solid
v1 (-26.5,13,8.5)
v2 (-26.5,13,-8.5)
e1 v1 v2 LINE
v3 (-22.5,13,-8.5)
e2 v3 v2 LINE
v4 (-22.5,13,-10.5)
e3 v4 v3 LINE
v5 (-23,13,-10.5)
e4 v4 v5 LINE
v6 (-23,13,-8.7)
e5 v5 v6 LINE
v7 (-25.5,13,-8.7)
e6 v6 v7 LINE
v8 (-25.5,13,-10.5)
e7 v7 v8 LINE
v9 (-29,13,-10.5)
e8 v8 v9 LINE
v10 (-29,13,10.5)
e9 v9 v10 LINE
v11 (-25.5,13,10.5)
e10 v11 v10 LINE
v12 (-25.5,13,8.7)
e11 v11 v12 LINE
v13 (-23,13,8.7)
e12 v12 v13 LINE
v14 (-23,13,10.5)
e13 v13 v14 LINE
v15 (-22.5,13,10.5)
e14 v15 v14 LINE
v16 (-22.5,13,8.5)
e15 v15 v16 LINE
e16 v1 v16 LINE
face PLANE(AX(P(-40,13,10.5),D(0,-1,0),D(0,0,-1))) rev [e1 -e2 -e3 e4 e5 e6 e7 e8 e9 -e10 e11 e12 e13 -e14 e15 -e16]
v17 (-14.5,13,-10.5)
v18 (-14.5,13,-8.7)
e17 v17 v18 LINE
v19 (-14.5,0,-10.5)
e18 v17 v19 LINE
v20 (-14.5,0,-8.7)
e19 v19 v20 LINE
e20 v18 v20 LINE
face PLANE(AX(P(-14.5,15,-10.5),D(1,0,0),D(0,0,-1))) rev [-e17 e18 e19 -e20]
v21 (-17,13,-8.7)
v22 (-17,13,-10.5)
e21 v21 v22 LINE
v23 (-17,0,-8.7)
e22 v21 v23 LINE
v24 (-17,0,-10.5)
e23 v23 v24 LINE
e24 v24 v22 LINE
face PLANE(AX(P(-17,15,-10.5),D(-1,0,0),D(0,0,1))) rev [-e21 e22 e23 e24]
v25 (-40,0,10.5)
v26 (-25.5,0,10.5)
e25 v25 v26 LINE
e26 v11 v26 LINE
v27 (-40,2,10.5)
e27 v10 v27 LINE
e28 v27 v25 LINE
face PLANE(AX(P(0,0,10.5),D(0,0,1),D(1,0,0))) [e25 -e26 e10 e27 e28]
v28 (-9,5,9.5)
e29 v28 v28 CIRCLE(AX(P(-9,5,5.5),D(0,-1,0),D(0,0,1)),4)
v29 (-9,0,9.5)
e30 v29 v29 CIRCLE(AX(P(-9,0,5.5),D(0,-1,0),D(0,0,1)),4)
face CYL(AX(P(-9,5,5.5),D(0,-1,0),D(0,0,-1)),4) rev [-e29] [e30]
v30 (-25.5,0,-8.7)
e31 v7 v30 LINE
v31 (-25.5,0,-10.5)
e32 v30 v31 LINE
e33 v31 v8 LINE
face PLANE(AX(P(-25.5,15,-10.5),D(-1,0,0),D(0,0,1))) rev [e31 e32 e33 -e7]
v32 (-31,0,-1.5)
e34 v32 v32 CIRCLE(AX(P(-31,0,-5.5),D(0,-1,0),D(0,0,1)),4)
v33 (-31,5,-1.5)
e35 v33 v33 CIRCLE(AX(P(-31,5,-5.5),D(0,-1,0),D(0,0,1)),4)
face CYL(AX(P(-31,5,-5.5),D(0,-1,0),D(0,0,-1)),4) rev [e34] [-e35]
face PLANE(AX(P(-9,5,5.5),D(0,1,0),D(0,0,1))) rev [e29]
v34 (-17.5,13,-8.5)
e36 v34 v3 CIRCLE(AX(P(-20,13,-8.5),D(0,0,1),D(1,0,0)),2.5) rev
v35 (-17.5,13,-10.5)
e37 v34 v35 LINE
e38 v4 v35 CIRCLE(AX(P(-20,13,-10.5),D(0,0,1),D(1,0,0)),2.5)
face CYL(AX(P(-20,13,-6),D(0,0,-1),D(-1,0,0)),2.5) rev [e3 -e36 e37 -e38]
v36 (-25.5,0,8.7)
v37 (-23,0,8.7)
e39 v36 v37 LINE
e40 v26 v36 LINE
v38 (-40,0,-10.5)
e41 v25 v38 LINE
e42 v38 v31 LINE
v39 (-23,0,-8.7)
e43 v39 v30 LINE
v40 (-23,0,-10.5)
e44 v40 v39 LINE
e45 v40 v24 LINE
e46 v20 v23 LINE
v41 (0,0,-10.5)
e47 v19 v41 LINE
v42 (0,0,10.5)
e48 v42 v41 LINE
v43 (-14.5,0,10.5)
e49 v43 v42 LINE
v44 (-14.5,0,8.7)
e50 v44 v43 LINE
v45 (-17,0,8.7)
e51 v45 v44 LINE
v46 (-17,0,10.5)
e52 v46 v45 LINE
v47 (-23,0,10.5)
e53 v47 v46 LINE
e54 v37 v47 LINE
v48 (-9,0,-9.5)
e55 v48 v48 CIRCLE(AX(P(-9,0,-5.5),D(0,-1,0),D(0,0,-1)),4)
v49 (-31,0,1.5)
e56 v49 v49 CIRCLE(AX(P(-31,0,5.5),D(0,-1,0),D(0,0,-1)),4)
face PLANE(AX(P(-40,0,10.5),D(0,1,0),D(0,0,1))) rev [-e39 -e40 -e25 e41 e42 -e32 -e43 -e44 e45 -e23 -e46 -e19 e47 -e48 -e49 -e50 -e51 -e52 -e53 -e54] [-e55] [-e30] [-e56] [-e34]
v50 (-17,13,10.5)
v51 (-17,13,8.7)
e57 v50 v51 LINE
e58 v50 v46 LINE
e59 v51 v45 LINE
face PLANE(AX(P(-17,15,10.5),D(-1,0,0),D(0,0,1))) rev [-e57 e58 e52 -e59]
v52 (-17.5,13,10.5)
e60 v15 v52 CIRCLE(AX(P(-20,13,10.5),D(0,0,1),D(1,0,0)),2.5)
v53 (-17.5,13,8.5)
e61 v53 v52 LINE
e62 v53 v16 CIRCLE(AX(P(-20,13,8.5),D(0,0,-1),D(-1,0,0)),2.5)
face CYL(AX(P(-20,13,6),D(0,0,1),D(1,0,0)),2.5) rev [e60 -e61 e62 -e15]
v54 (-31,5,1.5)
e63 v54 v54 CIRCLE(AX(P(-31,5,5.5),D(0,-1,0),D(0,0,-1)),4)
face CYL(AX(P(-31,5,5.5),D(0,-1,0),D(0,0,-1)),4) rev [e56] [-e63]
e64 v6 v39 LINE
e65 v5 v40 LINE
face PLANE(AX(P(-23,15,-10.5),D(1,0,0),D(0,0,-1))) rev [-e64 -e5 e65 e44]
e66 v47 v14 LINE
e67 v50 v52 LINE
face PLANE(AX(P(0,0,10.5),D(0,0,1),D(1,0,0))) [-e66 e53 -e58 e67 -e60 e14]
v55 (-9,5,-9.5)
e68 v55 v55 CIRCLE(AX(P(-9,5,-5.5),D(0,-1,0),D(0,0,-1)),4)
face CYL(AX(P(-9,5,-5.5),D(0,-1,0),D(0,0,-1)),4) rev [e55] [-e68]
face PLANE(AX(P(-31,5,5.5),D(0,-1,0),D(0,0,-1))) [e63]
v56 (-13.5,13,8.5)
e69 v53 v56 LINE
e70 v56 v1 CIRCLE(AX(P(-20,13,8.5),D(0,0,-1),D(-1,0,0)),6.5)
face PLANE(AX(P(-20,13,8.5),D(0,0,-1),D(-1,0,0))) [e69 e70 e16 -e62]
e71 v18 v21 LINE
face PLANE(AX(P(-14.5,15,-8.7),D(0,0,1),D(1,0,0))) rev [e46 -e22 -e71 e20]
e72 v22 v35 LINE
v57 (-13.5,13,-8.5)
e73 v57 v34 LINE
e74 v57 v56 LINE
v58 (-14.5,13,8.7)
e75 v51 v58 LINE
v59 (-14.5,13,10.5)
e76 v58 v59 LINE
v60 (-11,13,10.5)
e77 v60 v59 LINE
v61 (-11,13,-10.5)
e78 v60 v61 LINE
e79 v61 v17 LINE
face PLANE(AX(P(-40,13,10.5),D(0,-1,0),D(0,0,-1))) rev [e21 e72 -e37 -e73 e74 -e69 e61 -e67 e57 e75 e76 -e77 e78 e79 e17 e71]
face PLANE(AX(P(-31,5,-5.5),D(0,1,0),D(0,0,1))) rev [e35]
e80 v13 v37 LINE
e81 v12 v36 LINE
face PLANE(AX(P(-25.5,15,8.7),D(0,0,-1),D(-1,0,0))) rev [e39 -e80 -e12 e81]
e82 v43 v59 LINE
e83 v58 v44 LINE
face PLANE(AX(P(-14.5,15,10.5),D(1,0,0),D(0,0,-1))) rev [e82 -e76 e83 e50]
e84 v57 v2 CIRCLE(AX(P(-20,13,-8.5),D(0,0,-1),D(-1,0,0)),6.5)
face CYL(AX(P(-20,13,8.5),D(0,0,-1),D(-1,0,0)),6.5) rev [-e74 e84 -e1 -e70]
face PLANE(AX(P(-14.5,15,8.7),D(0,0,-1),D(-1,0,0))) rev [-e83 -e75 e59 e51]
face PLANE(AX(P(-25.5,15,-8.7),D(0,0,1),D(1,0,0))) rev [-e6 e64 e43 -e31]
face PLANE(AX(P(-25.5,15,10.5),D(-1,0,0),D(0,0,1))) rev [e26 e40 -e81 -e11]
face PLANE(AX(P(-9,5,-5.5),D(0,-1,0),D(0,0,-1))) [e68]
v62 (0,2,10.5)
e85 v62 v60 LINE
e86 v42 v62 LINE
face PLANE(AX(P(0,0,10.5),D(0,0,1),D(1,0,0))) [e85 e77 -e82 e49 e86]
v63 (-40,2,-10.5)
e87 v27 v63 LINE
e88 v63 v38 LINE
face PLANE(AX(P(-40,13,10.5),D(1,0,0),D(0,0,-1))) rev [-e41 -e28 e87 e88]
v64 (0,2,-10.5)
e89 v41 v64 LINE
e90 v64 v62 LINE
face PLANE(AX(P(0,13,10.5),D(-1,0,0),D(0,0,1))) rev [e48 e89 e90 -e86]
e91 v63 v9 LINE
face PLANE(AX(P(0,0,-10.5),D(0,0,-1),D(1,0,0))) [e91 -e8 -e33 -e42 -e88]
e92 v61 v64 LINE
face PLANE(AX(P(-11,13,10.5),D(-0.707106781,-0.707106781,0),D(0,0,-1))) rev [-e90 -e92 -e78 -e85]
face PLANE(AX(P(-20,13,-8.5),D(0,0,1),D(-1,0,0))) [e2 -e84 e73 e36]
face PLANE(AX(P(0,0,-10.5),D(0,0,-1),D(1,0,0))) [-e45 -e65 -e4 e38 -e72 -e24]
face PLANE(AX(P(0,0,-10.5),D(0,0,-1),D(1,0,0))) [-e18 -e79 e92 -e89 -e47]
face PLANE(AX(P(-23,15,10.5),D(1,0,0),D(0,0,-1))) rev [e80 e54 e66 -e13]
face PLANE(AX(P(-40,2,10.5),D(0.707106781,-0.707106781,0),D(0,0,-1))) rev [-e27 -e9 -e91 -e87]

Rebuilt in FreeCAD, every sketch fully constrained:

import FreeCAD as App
import Part
import Sketcher


def edges_at(feature, points):
    """Names of the edges that pass closest to the given points."""
    edges = feature.Shape.Edges
    near = lambda p: min(range(len(edges)), key=lambda i: edges[i].distToShape(Part.Vertex(*p))[0])
    return sorted({f"Edge{near(p) + 1}" for p in points})


def add_polygon(sketch, points):
    """Adds a closed chain of lines whose ends are joined by coincident constraints."""
    first, n = sketch.GeometryCount, len(points)
    for a, b in zip(points, points[1:] + points[:1]):
        sketch.addGeometry(Part.LineSegment(App.Vector(*a, 0), App.Vector(*b, 0)), False)
    for i in range(n):
        sketch.addConstraint(Sketcher.Constraint("Coincident", first + i, 2, first + (i + 1) % n, 1))

doc = App.newDocument("Part")
params = doc.addObject("Spreadsheet::Sheet", "Params")
for row, (alias, value) in enumerate([
    ("sketch1_width", "40 mm"),
    ("sketch1_height", "13 mm"),
    ("pad1_length", "10.5 mm"),
    ("sketch2_diameter", "13 mm"),
    ("pocket1_length", "8.5 mm"),
    ("sketch3_diameter", "5 mm"),
    ("pocket2_length", "4.5 mm"),
    ("sketch4_diameter", "8 mm"),
    ("pocket3_length", "5 mm"),
    ("chamfer_size", "11 mm"),
    ("sketch5_width", "2.5 mm"),
    ("sketch5_height", "1.8 mm"),
    ("pocket4_length", "15 mm"),
], start=1):
    params.set(f"A{row}", alias)
    params.set(f"B{row}", "=" + value)
    params.setAlias(f"B{row}", alias)

body = doc.addObject("PartDesign::Body", "Body")

sketch1 = body.newObject("Sketcher::SketchObject", "Sketch")
sketch1.AttachmentSupport = (doc.getObject("XY_Plane"), [""])
sketch1.MapMode = "FlatFace"
add_polygon(sketch1, [(-40, 13), (-40, 0), (0, 0), (0, 13)])
sketch1.addConstraint(Sketcher.Constraint("Vertical", 0))
sketch1.addConstraint(Sketcher.Constraint("Horizontal", 1))
sketch1.addConstraint(Sketcher.Constraint("Vertical", 2))
sketch1.addConstraint(Sketcher.Constraint("Horizontal", 3))
sketch1.addConstraint(Sketcher.Constraint("Coincident", 1, 2, -1, 1))
sketch1.addConstraint(Sketcher.Constraint("DistanceX", 1, 1, 1, 2, 40.0))
sketch1.addConstraint(Sketcher.Constraint("DistanceY", 0, 2, 0, 1, 13.0))
sketch1.setExpression("Constraints[9]", "Params.sketch1_width")
sketch1.setExpression("Constraints[10]", "Params.sketch1_height")
pad1 = body.newObject("PartDesign::Pad", "Pad")
pad1.Profile = sketch1
pad1.setExpression("Length", "Params.pad1_length")

sketch2 = body.newObject("Sketcher::SketchObject", "Sketch001")
sketch2.AttachmentSupport = (doc.getObject("XY_Plane"), [""])
sketch2.MapMode = "FlatFace"
sketch2.addGeometry(Part.Circle(App.Vector(-20, 13, 0), App.Vector(0, 0, 1), 6.5), False)
sketch2.addConstraint(Sketcher.Constraint("Diameter", 0, 13.0))
sketch2.addConstraint(Sketcher.Constraint("DistanceX", 0, 3, -1, 1, 20.0))
sketch2.addConstraint(Sketcher.Constraint("DistanceY", -1, 1, 0, 3, 13.0))
sketch2.setExpression("Constraints[0]", "Params.sketch2_diameter")
pocket1 = body.newObject("PartDesign::Pocket", "Pocket")
pocket1.Profile = sketch2
pocket1.setExpression("Length", "Params.pocket1_length")
pocket1.Reversed = True

sketch3 = body.newObject("Sketcher::SketchObject", "Sketch002")
sketch3.AttachmentSupport = (doc.getObject("XY_Plane"), [""])
sketch3.MapMode = "FlatFace"
sketch3.AttachmentOffset = App.Placement(App.Vector(0, 0, 10.5), App.Rotation())
sketch3.addGeometry(Part.Circle(App.Vector(-20, 13, 0), App.Vector(0, 0, 1), 2.5), False)
sketch3.addConstraint(Sketcher.Constraint("Diameter", 0, 5.0))
sketch3.addConstraint(Sketcher.Constraint("DistanceX", 0, 3, -1, 1, 20.0))
sketch3.addConstraint(Sketcher.Constraint("DistanceY", -1, 1, 0, 3, 13.0))
sketch3.setExpression("Constraints[0]", "Params.sketch3_diameter")
pocket2 = body.newObject("PartDesign::Pocket", "Pocket001")
pocket2.Profile = sketch3
pocket2.setExpression("Length", "Params.pocket2_length")
doc.recompute()

mirrored = body.newObject("PartDesign::Mirrored", "Mirrored")
mirrored.Originals = [pad1, pocket1, pocket2]
mirrored.MirrorPlane = (doc.getObject("XY_Plane"), [""])
body.Tip = mirrored

sketch4 = body.newObject("Sketcher::SketchObject", "Sketch003")
sketch4.AttachmentSupport = (doc.getObject("XZ_Plane"), [""])
sketch4.MapMode = "FlatFace"
sketch4.addGeometry(Part.Circle(App.Vector(-31, 5.5, 0), App.Vector(0, 0, 1), 4), False)
sketch4.addGeometry(Part.Circle(App.Vector(-9, 5.5, 0), App.Vector(0, 0, 1), 4), False)
sketch4.addGeometry(Part.Circle(App.Vector(-9, -5.5, 0), App.Vector(0, 0, 1), 4), False)
sketch4.addGeometry(Part.Circle(App.Vector(-31, -5.5, 0), App.Vector(0, 0, 1), 4), False)
sketch4.addConstraint(Sketcher.Constraint("Equal", 0, 1))
sketch4.addConstraint(Sketcher.Constraint("Equal", 1, 2))
sketch4.addConstraint(Sketcher.Constraint("Equal", 2, 3))
sketch4.addConstraint(Sketcher.Constraint("Symmetric", 1, 3, 2, 3, -1))
sketch4.addConstraint(Sketcher.Constraint("Symmetric", 0, 3, 3, 3, -1))
sketch4.addConstraint(Sketcher.Constraint("Horizontal", 0, 3, 1, 3))
sketch4.addConstraint(Sketcher.Constraint("Diameter", 0, 8.0))
sketch4.addConstraint(Sketcher.Constraint("DistanceX", 0, 3, -1, 1, 31.0))
sketch4.addConstraint(Sketcher.Constraint("DistanceX", 1, 3, -1, 1, 9.0))
sketch4.addConstraint(Sketcher.Constraint("DistanceY", 2, 3, 1, 3, 11.0))
sketch4.setExpression("Constraints[6]", "Params.sketch4_diameter")
pocket3 = body.newObject("PartDesign::Pocket", "Pocket002")
pocket3.Profile = sketch4
pocket3.setExpression("Length", "Params.pocket3_length")
doc.recompute()

chamfer = body.newObject("PartDesign::Chamfer", "Chamfer")
chamfer.Base = (pocket3, edges_at(pocket3, [(-40, 13, 0), (0, 13, 0)]))
chamfer.setExpression("Size", "Params.chamfer_size")

sketch5 = body.newObject("Sketcher::SketchObject", "Sketch004")
sketch5.AttachmentSupport = (doc.getObject("XZ_Plane"), [""])
sketch5.MapMode = "FlatFace"
add_polygon(sketch5, [(-17, 10.5), (-17, 8.7), (-14.5, 8.7), (-14.5, 10.5)])
add_polygon(sketch5, [(-25.5, 10.5), (-25.5, 8.7), (-23, 8.7), (-23, 10.5)])
add_polygon(sketch5, [(-17, -8.7), (-17, -10.5), (-14.5, -10.5), (-14.5, -8.7)])
add_polygon(sketch5, [(-25.5, -8.7), (-25.5, -10.5), (-23, -10.5), (-23, -8.7)])
sketch5.addConstraint(Sketcher.Constraint("Vertical", 0))
sketch5.addConstraint(Sketcher.Constraint("Horizontal", 1))
sketch5.addConstraint(Sketcher.Constraint("Vertical", 2))
sketch5.addConstraint(Sketcher.Constraint("Horizontal", 3))
sketch5.addConstraint(Sketcher.Constraint("Vertical", 4))
sketch5.addConstraint(Sketcher.Constraint("Horizontal", 5))
sketch5.addConstraint(Sketcher.Constraint("Vertical", 6))
sketch5.addConstraint(Sketcher.Constraint("Horizontal", 7))
sketch5.addConstraint(Sketcher.Constraint("Vertical", 8))
sketch5.addConstraint(Sketcher.Constraint("Horizontal", 9))
sketch5.addConstraint(Sketcher.Constraint("Vertical", 10))
sketch5.addConstraint(Sketcher.Constraint("Horizontal", 11))
sketch5.addConstraint(Sketcher.Constraint("Vertical", 12))
sketch5.addConstraint(Sketcher.Constraint("Horizontal", 13))
sketch5.addConstraint(Sketcher.Constraint("Vertical", 14))
sketch5.addConstraint(Sketcher.Constraint("Horizontal", 15))
sketch5.addConstraint(Sketcher.Constraint("Symmetric", 3, 2, 8, 2, -1))
sketch5.addConstraint(Sketcher.Constraint("Symmetric", 1, 2, 10, 2, -1))
sketch5.addConstraint(Sketcher.Constraint("Symmetric", 7, 2, 12, 2, -1))
sketch5.addConstraint(Sketcher.Constraint("Symmetric", 5, 2, 14, 2, -1))
sketch5.addConstraint(Sketcher.Constraint("Horizontal", 1, 2, 4, 2))
sketch5.addConstraint(Sketcher.Constraint("Horizontal", 3, 2, 6, 2))
sketch5.addConstraint(Sketcher.Constraint("Equal", 3, 5))
sketch5.addConstraint(Sketcher.Constraint("DistanceX", 1, 1, 1, 2, 2.5))
sketch5.addConstraint(Sketcher.Constraint("DistanceY", 0, 2, 0, 1, 1.8))
sketch5.addConstraint(Sketcher.Constraint("DistanceX", 0, 2, -1, 1, 17.0))
sketch5.addConstraint(Sketcher.Constraint("DistanceX", 5, 2, -1, 1, 23.0))
sketch5.addConstraint(Sketcher.Constraint("DistanceY", 8, 2, 3, 2, 21.0))
sketch5.setExpression("Constraints[39]", "Params.sketch5_width")
sketch5.setExpression("Constraints[40]", "Params.sketch5_height")
pocket4 = body.newObject("PartDesign::Pocket", "Pocket003")
pocket4.Profile = sketch5
pocket4.setExpression("Length", "Params.pocket4_length")

doc.recompute()
